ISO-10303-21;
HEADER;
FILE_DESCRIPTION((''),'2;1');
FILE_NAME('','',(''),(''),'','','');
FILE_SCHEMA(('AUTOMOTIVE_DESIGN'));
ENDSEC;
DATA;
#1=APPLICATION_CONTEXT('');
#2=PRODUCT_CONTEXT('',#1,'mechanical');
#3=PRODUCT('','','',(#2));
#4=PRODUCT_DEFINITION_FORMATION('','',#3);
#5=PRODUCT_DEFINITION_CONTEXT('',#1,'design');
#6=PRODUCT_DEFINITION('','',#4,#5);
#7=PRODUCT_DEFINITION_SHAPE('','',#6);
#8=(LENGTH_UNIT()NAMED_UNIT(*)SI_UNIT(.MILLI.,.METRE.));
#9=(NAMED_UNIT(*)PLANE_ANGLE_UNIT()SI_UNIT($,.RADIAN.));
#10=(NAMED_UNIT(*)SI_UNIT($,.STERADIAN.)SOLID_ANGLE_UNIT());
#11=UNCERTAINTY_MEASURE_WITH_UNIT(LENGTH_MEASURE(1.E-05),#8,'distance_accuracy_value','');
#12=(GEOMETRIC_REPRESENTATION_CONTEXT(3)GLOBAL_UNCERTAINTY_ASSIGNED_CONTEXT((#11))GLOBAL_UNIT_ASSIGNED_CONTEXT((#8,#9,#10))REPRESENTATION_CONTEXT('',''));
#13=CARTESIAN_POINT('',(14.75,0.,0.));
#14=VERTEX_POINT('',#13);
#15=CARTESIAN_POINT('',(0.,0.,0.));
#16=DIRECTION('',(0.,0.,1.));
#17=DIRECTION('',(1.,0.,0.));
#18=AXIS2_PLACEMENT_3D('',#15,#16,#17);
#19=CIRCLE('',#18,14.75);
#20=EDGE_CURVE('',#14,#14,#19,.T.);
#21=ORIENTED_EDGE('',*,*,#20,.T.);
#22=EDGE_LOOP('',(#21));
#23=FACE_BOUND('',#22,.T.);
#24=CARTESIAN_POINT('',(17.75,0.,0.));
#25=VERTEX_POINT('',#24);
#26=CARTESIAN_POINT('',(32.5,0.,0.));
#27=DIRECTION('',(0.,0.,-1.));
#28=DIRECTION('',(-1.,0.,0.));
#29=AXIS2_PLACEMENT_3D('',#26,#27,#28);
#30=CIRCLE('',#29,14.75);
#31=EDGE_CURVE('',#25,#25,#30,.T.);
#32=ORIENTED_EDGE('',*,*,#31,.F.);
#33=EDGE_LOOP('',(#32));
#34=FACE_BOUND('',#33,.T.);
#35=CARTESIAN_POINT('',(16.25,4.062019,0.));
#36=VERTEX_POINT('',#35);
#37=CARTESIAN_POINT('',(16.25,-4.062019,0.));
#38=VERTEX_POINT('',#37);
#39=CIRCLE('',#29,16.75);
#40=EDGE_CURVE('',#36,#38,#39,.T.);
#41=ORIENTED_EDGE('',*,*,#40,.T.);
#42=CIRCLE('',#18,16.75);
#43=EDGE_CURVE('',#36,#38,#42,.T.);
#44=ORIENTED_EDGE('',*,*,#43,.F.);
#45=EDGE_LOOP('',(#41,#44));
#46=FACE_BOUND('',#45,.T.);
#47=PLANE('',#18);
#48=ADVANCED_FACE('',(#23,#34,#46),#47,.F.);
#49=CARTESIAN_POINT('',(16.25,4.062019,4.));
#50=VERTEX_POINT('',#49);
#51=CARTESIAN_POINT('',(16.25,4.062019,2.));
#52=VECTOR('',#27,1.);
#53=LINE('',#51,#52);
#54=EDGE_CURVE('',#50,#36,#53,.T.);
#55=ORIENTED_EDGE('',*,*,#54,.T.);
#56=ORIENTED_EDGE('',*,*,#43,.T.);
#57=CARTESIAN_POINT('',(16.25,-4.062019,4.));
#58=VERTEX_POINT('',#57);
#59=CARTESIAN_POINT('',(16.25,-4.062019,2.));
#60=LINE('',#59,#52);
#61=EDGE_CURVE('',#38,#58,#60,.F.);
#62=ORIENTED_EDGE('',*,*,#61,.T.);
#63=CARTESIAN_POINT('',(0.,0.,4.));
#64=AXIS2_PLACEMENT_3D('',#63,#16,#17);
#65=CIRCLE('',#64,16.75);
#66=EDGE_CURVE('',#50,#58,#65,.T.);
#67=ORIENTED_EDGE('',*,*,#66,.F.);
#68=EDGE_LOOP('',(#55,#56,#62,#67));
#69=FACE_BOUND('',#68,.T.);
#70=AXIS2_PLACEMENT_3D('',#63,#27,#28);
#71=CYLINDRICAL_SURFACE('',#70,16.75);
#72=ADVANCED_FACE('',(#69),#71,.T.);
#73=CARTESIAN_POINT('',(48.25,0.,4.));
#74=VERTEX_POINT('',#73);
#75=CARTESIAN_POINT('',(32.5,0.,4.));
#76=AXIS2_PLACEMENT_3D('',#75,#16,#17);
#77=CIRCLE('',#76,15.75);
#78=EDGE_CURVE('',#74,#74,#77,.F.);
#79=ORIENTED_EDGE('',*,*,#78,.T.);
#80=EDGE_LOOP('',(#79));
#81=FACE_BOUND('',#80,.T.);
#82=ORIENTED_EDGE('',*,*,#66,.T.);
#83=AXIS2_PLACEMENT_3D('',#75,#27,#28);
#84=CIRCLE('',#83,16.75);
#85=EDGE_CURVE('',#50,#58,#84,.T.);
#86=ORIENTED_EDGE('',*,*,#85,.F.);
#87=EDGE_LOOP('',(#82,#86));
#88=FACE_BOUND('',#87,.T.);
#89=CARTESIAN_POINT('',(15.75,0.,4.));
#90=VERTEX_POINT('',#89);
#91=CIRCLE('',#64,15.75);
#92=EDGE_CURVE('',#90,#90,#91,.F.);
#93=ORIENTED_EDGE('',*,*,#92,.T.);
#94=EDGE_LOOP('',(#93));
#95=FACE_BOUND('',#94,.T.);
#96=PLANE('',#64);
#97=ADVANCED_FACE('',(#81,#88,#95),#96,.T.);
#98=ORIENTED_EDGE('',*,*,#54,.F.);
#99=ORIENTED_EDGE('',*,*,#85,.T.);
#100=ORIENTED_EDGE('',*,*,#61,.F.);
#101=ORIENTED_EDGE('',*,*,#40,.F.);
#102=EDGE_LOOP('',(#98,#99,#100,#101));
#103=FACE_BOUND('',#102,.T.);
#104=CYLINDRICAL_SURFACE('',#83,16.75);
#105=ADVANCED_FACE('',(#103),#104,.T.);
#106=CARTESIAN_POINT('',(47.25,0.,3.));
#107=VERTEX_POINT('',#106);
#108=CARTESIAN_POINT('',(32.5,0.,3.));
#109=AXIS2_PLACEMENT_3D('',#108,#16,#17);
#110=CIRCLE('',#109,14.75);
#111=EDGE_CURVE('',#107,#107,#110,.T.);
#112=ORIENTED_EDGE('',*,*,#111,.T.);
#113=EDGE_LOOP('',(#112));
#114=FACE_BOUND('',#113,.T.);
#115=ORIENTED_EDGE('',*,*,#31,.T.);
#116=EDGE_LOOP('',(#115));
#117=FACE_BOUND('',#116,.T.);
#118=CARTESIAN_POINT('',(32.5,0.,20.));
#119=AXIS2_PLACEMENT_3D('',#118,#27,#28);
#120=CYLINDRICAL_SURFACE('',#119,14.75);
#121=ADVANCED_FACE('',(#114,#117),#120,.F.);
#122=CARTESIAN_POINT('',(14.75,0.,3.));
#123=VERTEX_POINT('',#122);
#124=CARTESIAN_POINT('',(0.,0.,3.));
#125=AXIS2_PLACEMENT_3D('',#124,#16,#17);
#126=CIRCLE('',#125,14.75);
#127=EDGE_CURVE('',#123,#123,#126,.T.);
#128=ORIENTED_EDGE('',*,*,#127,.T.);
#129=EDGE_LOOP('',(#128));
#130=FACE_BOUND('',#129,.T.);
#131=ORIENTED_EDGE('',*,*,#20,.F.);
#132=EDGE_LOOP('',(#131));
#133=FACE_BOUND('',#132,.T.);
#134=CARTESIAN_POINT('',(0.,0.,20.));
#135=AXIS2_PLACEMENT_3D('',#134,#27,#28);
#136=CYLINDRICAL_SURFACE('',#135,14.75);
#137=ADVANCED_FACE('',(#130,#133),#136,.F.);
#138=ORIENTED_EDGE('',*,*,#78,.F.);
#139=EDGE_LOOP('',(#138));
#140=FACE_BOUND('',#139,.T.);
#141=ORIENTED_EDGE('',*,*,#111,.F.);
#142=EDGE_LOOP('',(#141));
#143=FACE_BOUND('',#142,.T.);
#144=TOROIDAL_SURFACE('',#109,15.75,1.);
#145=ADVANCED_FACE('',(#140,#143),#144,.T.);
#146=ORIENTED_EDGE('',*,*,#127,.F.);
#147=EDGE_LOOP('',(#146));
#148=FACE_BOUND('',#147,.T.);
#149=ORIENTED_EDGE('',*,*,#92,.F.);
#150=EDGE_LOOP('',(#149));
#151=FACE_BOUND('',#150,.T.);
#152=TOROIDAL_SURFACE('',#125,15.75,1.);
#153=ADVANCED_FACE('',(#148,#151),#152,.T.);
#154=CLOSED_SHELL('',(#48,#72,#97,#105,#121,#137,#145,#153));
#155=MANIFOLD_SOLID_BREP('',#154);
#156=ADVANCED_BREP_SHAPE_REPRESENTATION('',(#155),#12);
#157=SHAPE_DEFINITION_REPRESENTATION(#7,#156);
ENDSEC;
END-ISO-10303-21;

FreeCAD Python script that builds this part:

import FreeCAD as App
import Part
import Sketcher
from FreeCAD import Vector
Q = App.Units.Quantity


def edges_at(feature, points):
    """Names of the edges that pass closest to the given points."""
    edges = feature.Shape.Edges
    near = lambda p: min(range(len(edges)), key=lambda i: edges[i].distToShape(Part.Vertex(*p))[0])
    return sorted({f"Edge{near(p) + 1}" for p in points})

doc = App.newDocument("Part")
body = doc.addObject("PartDesign::Body", "Body")

# Sketch on XY plane
sketch1 = doc.addObject("Sketcher::SketchObject", "Sketch")
body.addObject(sketch1)
sketch1.AttachmentSupport = (doc.XY_Plane, [""])
sketch1.MapMode = "FlatFace"
sketch1.addGeometry(Part.Circle(Vector(0, 0, 0), Vector(0, 0, 1), 16.75), False)
sketch1.addConstraint(Sketcher.Constraint("Coincident", 0, 3, -1, 1))
sketch1.addConstraint(Sketcher.Constraint("Diameter", 0, Q("33.5 mm")))
pad1 = doc.addObject("PartDesign::Pad", "Pad")
body.addObject(pad1)
pad1.Profile = sketch1
pad1.Length = 4

# Sketch on XY plane
sketch2 = doc.addObject("Sketcher::SketchObject", "Sketch001")
body.addObject(sketch2)
sketch2.AttachmentSupport = (doc.XY_Plane, [""])
sketch2.MapMode = "FlatFace"
sketch2.addGeometry(Part.Circle(Vector(0, 0, 0), Vector(0, 0, 1), 14.75), False)
sketch2.addConstraint(Sketcher.Constraint("Coincident", 0, 3, -1, 1))
sketch2.addConstraint(Sketcher.Constraint("Diameter", 0, Q("29.5 mm")))
pocket1 = doc.addObject("PartDesign::Pocket", "Pocket")
body.addObject(pocket1)
pocket1.Profile = sketch2
pocket1.Length = 20
pocket1.Reversed = True
doc.recompute()

fillet = doc.addObject("PartDesign::Fillet", "Fillet")
body.addObject(fillet)
fillet.Base = (pocket1, edges_at(pocket1, [(-14.75, 0, 4)]))
fillet.Radius = 1
doc.recompute()

datumplane = doc.addObject("PartDesign::Plane", "DatumPlane")
body.addObject(datumplane)
datumplane.AttachmentSupport = (doc.YZ_Plane, [""])
datumplane.MapMode = "FlatFace"
datumplane.AttachmentOffset = App.Placement(Vector(0, 0, 16.25), App.Rotation())
mirrored = doc.addObject("PartDesign::Mirrored", "Mirrored")
body.addObject(mirrored)
mirrored.Originals = [pad1, pocket1]
mirrored.MirrorPlane = (datumplane, [""])
body.Tip = mirrored
doc.recompute()

fillet2 = doc.addObject("PartDesign::Fillet", "Fillet001")
body.addObject(fillet2)
fillet2.Base = (mirrored, edges_at(mirrored, [(47.25, 0, 4)]))
fillet2.Radius = 1

doc.recompute()
